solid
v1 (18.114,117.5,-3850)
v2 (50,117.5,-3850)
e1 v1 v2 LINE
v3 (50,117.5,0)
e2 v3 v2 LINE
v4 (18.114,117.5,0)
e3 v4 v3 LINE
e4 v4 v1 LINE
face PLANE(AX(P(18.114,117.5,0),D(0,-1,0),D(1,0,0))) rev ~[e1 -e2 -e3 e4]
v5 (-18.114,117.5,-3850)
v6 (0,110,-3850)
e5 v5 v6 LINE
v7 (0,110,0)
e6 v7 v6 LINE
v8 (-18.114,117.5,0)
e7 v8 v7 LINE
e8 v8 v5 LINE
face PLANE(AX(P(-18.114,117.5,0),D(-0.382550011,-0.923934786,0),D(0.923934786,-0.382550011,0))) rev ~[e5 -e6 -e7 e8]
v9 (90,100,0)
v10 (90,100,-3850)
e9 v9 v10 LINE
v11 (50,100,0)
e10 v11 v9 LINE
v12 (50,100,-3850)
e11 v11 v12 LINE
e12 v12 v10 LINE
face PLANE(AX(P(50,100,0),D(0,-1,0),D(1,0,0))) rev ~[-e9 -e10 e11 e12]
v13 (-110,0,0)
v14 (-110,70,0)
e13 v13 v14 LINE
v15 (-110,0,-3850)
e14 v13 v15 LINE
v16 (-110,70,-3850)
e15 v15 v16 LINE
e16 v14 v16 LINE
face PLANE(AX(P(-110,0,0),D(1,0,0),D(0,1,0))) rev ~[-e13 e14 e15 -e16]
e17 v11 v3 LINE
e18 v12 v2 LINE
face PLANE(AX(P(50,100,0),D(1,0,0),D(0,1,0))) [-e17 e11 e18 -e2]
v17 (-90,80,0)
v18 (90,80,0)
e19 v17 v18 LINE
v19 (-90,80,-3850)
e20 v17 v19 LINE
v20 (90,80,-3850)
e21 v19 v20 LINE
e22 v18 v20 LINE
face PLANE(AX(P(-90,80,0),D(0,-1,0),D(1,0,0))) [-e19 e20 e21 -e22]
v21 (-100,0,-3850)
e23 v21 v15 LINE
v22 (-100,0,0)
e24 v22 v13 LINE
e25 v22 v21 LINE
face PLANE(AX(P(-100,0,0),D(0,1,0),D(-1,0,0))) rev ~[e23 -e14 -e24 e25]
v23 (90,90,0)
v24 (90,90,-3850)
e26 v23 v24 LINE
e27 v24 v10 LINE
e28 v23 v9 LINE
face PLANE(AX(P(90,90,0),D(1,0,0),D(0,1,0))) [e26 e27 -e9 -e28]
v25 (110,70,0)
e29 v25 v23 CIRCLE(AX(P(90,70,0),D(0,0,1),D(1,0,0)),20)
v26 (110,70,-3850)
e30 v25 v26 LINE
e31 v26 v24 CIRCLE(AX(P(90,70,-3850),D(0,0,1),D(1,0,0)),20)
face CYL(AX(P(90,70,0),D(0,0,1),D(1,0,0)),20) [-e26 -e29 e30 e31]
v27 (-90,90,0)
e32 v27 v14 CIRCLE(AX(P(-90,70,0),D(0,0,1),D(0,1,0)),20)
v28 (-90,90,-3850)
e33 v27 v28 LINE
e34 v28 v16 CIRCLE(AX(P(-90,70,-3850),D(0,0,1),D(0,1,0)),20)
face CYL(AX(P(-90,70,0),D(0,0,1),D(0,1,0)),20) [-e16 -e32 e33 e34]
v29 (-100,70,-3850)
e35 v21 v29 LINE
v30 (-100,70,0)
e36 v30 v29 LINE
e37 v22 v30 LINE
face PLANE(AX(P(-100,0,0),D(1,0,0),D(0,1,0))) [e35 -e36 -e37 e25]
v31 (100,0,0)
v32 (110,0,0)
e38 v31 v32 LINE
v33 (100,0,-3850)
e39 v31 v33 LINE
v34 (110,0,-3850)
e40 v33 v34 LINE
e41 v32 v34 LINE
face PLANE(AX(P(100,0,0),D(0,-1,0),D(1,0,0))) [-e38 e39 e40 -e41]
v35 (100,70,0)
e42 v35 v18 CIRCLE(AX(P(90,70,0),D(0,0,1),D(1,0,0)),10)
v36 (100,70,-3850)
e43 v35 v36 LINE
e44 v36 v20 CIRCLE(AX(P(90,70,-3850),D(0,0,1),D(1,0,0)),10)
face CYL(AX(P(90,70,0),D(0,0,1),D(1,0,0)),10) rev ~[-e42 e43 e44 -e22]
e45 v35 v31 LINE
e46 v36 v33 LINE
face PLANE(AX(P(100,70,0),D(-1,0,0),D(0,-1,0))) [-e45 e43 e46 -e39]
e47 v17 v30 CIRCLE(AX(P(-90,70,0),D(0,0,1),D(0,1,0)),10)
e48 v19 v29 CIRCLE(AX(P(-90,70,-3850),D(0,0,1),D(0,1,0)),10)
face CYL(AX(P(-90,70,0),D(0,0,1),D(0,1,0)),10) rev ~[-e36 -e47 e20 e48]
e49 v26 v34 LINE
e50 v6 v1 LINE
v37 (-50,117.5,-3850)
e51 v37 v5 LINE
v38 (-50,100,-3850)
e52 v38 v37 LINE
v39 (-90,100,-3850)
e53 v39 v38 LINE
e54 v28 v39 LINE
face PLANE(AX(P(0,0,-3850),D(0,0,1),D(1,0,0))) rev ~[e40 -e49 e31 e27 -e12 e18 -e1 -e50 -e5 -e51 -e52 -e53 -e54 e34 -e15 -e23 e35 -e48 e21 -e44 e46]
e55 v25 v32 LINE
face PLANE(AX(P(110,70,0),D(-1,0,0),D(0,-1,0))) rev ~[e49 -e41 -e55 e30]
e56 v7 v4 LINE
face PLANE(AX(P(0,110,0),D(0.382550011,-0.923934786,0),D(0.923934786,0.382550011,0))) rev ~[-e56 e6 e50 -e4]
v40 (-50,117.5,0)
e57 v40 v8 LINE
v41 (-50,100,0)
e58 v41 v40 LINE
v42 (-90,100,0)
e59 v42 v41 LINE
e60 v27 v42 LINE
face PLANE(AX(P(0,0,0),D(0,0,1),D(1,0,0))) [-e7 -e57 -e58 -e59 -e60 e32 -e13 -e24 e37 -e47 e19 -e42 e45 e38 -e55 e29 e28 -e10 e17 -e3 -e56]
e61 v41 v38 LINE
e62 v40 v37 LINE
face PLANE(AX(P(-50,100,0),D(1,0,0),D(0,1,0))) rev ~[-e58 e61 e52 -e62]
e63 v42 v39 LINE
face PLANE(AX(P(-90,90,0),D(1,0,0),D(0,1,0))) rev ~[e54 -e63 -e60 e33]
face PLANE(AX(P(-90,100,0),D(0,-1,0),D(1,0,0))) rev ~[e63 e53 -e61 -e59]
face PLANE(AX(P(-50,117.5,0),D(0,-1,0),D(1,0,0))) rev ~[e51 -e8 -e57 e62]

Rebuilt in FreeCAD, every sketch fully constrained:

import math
import FreeCAD as App
import Part
import Sketcher

V = App.Vector

doc = App.newDocument("Part")
body = doc.addObject("PartDesign::Body", "Body")

# Sketch on XY plane
sketch1 = body.newObject("Sketcher::SketchObject", "Sketch")
sketch1.AttachmentSupport = (doc.getObject("XY_Plane"), [""])
sketch1.MapMode = "FlatFace"
sketch1.addGeometry(Part.LineSegment(V(-110, 0, 0), V(-100, 0, 0)), False)
sketch1.addGeometry(Part.LineSegment(V(-100, 0, 0), V(-100, 70, 0)), False)
sketch1.addGeometry(Part.ArcOfCircle(Part.Circle(V(-90, 70, 0), V(0, 0, 1), 10), math.radians(90), math.radians(180)), False)
sketch1.addGeometry(Part.LineSegment(V(-90, 80, 0), V(90, 80, 0)), False)
sketch1.addGeometry(Part.ArcOfCircle(Part.Circle(V(90, 70, 0), V(0, 0, 1), 10), math.radians(0), math.radians(90)), False)
sketch1.addGeometry(Part.LineSegment(V(100, 70, 0), V(100, 0, 0)), False)
sketch1.addGeometry(Part.LineSegment(V(100, 0, 0), V(110, 0, 0)), False)
sketch1.addGeometry(Part.LineSegment(V(110, 0, 0), V(110, 70, 0)), False)
sketch1.addGeometry(Part.ArcOfCircle(Part.Circle(V(90, 70, 0), V(0, 0, 1), 20), math.radians(0), math.radians(90)), False)
sketch1.addGeometry(Part.LineSegment(V(90, 90, 0), V(90, 100, 0)), False)
sketch1.addGeometry(Part.LineSegment(V(90, 100, 0), V(50, 100, 0)), False)
sketch1.addGeometry(Part.LineSegment(V(50, 100, 0), V(50, 118, 0)), False)
sketch1.addGeometry(Part.LineSegment(V(50, 118, 0), V(18, 118, 0)), False)
sketch1.addGeometry(Part.LineSegment(V(18, 118, 0), V(0, 110, 0)), False)
sketch1.addGeometry(Part.LineSegment(V(0, 110, 0), V(-18, 118, 0)), False)
sketch1.addGeometry(Part.LineSegment(V(-18, 118, 0), V(-50, 118, 0)), False)
sketch1.addGeometry(Part.LineSegment(V(-50, 118, 0), V(-50, 100, 0)), False)
sketch1.addGeometry(Part.LineSegment(V(-50, 100, 0), V(-90, 100, 0)), False)
sketch1.addGeometry(Part.LineSegment(V(-90, 100, 0), V(-90, 90, 0)), False)
sketch1.addGeometry(Part.ArcOfCircle(Part.Circle(V(-90, 70, 0), V(0, 0, 1), 20), math.radians(90), math.radians(180)), False)
sketch1.addGeometry(Part.LineSegment(V(-110, 70, 0), V(-110, 0, 0)), False)
sketch1.addConstraint(Sketcher.Constraint("Coincident", 0, 2, 1, 1))
sketch1.addConstraint(Sketcher.Constraint("Tangent", 1, 2, 2, 2))
sketch1.addConstraint(Sketcher.Constraint("Tangent", 2, 1, 3, 1))
sketch1.addConstraint(Sketcher.Constraint("Tangent", 3, 2, 4, 2))
sketch1.addConstraint(Sketcher.Constraint("Tangent", 4, 1, 5, 1))
sketch1.addConstraint(Sketcher.Constraint("Coincident", 5, 2, 6, 1))
sketch1.addConstraint(Sketcher.Constraint("Coincident", 6, 2, 7, 1))
sketch1.addConstraint(Sketcher.Constraint("Tangent", 7, 2, 8, 1))
sketch1.addConstraint(Sketcher.Constraint("Coincident", 8, 2, 9, 1))
sketch1.addConstraint(Sketcher.Constraint("Coincident", 9, 2, 10, 1))
sketch1.addConstraint(Sketcher.Constraint("Coincident", 10, 2, 11, 1))
sketch1.addConstraint(Sketcher.Constraint("Coincident", 11, 2, 12, 1))
sketch1.addConstraint(Sketcher.Constraint("Coincident", 12, 2, 13, 1))
sketch1.addConstraint(Sketcher.Constraint("Coincident", 13, 2, 14, 1))
sketch1.addConstraint(Sketcher.Constraint("Coincident", 14, 2, 15, 1))
sketch1.addConstraint(Sketcher.Constraint("Coincident", 15, 2, 16, 1))
sketch1.addConstraint(Sketcher.Constraint("Coincident", 16, 2, 17, 1))
sketch1.addConstraint(Sketcher.Constraint("Coincident", 17, 2, 18, 1))
sketch1.addConstraint(Sketcher.Constraint("Coincident", 18, 2, 19, 1))
sketch1.addConstraint(Sketcher.Constraint("Tangent", 19, 2, 20, 1))
sketch1.addConstraint(Sketcher.Constraint("Coincident", 20, 2, 0, 1))
sketch1.addConstraint(Sketcher.Constraint("Horizontal", 0))
sketch1.addConstraint(Sketcher.Constraint("Vertical", 1))
sketch1.addConstraint(Sketcher.Constraint("Horizontal", 3))
sketch1.addConstraint(Sketcher.Constraint("Vertical", 5))
sketch1.addConstraint(Sketcher.Constraint("Horizontal", 6))
sketch1.addConstraint(Sketcher.Constraint("Vertical", 7))
sketch1.addConstraint(Sketcher.Constraint("Vertical", 9))
sketch1.addConstraint(Sketcher.Constraint("Horizontal", 10))
sketch1.addConstraint(Sketcher.Constraint("Vertical", 11))
sketch1.addConstraint(Sketcher.Constraint("Horizontal", 12))
sketch1.addConstraint(Sketcher.Constraint("Horizontal", 15))
sketch1.addConstraint(Sketcher.Constraint("Vertical", 16))
sketch1.addConstraint(Sketcher.Constraint("Horizontal", 17))
sketch1.addConstraint(Sketcher.Constraint("Vertical", 18))
sketch1.addConstraint(Sketcher.Constraint("Vertical", 20))
sketch1.addConstraint(Sketcher.Constraint("Coincident", 8, 3, 4, 3))
sketch1.addConstraint(Sketcher.Constraint("Coincident", 19, 3, 2, 3))
sketch1.addConstraint(Sketcher.Constraint("Equal", 2, 4))
sketch1.addConstraint(Sketcher.Constraint("Equal", 8, 19))
sketch1.addConstraint(Sketcher.Constraint("Symmetric", 0, 2, 5, 2, -1, 1))
sketch1.addConstraint(Sketcher.Constraint("Symmetric", 12, 2, 14, 2, -2))
sketch1.addConstraint(Sketcher.Constraint("Symmetric", 10, 2, 16, 2, -2))
sketch1.addConstraint(Sketcher.Constraint("PointOnObject", 0, 2, -1))
sketch1.addConstraint(Sketcher.Constraint("PointOnObject", 13, 2, -2))
sketch1.addConstraint(Sketcher.Constraint("Vertical", 3, 2, 8, 2))
sketch1.addConstraint(Sketcher.Constraint("Vertical", 2, 1, 17, 2))
sketch1.addConstraint(Sketcher.Constraint("Equal", 6, 9))
sketch1.addConstraint(Sketcher.Constraint("Radius", 2, 10.0))
sketch1.addConstraint(Sketcher.Constraint("Radius", 8, 20.0))
sketch1.addConstraint(Sketcher.Constraint("DistanceY", 11, 1, 11, 2, 17.5))
sketch1.addConstraint(Sketcher.Constraint("DistanceX", 0, 2, -1, 1, 100.0))
sketch1.addConstraint(Sketcher.Constraint("DistanceY", -1, 1, 2, 1, 80.0))
sketch1.addConstraint(Sketcher.Constraint("DistanceX", -1, 1, 10, 2, 50.0))
sketch1.addConstraint(Sketcher.Constraint("DistanceY", 10, 2, 13, 2, 10.0))
sketch1.addConstraint(Sketcher.Constraint("DistanceX", 12, 2, 12, 1, 31.886))
pad1 = body.newObject("PartDesign::Pad", "Pad")
pad1.Profile = sketch1
pad1.Length = 3850
pad1.Reversed = True

doc.recompute()
